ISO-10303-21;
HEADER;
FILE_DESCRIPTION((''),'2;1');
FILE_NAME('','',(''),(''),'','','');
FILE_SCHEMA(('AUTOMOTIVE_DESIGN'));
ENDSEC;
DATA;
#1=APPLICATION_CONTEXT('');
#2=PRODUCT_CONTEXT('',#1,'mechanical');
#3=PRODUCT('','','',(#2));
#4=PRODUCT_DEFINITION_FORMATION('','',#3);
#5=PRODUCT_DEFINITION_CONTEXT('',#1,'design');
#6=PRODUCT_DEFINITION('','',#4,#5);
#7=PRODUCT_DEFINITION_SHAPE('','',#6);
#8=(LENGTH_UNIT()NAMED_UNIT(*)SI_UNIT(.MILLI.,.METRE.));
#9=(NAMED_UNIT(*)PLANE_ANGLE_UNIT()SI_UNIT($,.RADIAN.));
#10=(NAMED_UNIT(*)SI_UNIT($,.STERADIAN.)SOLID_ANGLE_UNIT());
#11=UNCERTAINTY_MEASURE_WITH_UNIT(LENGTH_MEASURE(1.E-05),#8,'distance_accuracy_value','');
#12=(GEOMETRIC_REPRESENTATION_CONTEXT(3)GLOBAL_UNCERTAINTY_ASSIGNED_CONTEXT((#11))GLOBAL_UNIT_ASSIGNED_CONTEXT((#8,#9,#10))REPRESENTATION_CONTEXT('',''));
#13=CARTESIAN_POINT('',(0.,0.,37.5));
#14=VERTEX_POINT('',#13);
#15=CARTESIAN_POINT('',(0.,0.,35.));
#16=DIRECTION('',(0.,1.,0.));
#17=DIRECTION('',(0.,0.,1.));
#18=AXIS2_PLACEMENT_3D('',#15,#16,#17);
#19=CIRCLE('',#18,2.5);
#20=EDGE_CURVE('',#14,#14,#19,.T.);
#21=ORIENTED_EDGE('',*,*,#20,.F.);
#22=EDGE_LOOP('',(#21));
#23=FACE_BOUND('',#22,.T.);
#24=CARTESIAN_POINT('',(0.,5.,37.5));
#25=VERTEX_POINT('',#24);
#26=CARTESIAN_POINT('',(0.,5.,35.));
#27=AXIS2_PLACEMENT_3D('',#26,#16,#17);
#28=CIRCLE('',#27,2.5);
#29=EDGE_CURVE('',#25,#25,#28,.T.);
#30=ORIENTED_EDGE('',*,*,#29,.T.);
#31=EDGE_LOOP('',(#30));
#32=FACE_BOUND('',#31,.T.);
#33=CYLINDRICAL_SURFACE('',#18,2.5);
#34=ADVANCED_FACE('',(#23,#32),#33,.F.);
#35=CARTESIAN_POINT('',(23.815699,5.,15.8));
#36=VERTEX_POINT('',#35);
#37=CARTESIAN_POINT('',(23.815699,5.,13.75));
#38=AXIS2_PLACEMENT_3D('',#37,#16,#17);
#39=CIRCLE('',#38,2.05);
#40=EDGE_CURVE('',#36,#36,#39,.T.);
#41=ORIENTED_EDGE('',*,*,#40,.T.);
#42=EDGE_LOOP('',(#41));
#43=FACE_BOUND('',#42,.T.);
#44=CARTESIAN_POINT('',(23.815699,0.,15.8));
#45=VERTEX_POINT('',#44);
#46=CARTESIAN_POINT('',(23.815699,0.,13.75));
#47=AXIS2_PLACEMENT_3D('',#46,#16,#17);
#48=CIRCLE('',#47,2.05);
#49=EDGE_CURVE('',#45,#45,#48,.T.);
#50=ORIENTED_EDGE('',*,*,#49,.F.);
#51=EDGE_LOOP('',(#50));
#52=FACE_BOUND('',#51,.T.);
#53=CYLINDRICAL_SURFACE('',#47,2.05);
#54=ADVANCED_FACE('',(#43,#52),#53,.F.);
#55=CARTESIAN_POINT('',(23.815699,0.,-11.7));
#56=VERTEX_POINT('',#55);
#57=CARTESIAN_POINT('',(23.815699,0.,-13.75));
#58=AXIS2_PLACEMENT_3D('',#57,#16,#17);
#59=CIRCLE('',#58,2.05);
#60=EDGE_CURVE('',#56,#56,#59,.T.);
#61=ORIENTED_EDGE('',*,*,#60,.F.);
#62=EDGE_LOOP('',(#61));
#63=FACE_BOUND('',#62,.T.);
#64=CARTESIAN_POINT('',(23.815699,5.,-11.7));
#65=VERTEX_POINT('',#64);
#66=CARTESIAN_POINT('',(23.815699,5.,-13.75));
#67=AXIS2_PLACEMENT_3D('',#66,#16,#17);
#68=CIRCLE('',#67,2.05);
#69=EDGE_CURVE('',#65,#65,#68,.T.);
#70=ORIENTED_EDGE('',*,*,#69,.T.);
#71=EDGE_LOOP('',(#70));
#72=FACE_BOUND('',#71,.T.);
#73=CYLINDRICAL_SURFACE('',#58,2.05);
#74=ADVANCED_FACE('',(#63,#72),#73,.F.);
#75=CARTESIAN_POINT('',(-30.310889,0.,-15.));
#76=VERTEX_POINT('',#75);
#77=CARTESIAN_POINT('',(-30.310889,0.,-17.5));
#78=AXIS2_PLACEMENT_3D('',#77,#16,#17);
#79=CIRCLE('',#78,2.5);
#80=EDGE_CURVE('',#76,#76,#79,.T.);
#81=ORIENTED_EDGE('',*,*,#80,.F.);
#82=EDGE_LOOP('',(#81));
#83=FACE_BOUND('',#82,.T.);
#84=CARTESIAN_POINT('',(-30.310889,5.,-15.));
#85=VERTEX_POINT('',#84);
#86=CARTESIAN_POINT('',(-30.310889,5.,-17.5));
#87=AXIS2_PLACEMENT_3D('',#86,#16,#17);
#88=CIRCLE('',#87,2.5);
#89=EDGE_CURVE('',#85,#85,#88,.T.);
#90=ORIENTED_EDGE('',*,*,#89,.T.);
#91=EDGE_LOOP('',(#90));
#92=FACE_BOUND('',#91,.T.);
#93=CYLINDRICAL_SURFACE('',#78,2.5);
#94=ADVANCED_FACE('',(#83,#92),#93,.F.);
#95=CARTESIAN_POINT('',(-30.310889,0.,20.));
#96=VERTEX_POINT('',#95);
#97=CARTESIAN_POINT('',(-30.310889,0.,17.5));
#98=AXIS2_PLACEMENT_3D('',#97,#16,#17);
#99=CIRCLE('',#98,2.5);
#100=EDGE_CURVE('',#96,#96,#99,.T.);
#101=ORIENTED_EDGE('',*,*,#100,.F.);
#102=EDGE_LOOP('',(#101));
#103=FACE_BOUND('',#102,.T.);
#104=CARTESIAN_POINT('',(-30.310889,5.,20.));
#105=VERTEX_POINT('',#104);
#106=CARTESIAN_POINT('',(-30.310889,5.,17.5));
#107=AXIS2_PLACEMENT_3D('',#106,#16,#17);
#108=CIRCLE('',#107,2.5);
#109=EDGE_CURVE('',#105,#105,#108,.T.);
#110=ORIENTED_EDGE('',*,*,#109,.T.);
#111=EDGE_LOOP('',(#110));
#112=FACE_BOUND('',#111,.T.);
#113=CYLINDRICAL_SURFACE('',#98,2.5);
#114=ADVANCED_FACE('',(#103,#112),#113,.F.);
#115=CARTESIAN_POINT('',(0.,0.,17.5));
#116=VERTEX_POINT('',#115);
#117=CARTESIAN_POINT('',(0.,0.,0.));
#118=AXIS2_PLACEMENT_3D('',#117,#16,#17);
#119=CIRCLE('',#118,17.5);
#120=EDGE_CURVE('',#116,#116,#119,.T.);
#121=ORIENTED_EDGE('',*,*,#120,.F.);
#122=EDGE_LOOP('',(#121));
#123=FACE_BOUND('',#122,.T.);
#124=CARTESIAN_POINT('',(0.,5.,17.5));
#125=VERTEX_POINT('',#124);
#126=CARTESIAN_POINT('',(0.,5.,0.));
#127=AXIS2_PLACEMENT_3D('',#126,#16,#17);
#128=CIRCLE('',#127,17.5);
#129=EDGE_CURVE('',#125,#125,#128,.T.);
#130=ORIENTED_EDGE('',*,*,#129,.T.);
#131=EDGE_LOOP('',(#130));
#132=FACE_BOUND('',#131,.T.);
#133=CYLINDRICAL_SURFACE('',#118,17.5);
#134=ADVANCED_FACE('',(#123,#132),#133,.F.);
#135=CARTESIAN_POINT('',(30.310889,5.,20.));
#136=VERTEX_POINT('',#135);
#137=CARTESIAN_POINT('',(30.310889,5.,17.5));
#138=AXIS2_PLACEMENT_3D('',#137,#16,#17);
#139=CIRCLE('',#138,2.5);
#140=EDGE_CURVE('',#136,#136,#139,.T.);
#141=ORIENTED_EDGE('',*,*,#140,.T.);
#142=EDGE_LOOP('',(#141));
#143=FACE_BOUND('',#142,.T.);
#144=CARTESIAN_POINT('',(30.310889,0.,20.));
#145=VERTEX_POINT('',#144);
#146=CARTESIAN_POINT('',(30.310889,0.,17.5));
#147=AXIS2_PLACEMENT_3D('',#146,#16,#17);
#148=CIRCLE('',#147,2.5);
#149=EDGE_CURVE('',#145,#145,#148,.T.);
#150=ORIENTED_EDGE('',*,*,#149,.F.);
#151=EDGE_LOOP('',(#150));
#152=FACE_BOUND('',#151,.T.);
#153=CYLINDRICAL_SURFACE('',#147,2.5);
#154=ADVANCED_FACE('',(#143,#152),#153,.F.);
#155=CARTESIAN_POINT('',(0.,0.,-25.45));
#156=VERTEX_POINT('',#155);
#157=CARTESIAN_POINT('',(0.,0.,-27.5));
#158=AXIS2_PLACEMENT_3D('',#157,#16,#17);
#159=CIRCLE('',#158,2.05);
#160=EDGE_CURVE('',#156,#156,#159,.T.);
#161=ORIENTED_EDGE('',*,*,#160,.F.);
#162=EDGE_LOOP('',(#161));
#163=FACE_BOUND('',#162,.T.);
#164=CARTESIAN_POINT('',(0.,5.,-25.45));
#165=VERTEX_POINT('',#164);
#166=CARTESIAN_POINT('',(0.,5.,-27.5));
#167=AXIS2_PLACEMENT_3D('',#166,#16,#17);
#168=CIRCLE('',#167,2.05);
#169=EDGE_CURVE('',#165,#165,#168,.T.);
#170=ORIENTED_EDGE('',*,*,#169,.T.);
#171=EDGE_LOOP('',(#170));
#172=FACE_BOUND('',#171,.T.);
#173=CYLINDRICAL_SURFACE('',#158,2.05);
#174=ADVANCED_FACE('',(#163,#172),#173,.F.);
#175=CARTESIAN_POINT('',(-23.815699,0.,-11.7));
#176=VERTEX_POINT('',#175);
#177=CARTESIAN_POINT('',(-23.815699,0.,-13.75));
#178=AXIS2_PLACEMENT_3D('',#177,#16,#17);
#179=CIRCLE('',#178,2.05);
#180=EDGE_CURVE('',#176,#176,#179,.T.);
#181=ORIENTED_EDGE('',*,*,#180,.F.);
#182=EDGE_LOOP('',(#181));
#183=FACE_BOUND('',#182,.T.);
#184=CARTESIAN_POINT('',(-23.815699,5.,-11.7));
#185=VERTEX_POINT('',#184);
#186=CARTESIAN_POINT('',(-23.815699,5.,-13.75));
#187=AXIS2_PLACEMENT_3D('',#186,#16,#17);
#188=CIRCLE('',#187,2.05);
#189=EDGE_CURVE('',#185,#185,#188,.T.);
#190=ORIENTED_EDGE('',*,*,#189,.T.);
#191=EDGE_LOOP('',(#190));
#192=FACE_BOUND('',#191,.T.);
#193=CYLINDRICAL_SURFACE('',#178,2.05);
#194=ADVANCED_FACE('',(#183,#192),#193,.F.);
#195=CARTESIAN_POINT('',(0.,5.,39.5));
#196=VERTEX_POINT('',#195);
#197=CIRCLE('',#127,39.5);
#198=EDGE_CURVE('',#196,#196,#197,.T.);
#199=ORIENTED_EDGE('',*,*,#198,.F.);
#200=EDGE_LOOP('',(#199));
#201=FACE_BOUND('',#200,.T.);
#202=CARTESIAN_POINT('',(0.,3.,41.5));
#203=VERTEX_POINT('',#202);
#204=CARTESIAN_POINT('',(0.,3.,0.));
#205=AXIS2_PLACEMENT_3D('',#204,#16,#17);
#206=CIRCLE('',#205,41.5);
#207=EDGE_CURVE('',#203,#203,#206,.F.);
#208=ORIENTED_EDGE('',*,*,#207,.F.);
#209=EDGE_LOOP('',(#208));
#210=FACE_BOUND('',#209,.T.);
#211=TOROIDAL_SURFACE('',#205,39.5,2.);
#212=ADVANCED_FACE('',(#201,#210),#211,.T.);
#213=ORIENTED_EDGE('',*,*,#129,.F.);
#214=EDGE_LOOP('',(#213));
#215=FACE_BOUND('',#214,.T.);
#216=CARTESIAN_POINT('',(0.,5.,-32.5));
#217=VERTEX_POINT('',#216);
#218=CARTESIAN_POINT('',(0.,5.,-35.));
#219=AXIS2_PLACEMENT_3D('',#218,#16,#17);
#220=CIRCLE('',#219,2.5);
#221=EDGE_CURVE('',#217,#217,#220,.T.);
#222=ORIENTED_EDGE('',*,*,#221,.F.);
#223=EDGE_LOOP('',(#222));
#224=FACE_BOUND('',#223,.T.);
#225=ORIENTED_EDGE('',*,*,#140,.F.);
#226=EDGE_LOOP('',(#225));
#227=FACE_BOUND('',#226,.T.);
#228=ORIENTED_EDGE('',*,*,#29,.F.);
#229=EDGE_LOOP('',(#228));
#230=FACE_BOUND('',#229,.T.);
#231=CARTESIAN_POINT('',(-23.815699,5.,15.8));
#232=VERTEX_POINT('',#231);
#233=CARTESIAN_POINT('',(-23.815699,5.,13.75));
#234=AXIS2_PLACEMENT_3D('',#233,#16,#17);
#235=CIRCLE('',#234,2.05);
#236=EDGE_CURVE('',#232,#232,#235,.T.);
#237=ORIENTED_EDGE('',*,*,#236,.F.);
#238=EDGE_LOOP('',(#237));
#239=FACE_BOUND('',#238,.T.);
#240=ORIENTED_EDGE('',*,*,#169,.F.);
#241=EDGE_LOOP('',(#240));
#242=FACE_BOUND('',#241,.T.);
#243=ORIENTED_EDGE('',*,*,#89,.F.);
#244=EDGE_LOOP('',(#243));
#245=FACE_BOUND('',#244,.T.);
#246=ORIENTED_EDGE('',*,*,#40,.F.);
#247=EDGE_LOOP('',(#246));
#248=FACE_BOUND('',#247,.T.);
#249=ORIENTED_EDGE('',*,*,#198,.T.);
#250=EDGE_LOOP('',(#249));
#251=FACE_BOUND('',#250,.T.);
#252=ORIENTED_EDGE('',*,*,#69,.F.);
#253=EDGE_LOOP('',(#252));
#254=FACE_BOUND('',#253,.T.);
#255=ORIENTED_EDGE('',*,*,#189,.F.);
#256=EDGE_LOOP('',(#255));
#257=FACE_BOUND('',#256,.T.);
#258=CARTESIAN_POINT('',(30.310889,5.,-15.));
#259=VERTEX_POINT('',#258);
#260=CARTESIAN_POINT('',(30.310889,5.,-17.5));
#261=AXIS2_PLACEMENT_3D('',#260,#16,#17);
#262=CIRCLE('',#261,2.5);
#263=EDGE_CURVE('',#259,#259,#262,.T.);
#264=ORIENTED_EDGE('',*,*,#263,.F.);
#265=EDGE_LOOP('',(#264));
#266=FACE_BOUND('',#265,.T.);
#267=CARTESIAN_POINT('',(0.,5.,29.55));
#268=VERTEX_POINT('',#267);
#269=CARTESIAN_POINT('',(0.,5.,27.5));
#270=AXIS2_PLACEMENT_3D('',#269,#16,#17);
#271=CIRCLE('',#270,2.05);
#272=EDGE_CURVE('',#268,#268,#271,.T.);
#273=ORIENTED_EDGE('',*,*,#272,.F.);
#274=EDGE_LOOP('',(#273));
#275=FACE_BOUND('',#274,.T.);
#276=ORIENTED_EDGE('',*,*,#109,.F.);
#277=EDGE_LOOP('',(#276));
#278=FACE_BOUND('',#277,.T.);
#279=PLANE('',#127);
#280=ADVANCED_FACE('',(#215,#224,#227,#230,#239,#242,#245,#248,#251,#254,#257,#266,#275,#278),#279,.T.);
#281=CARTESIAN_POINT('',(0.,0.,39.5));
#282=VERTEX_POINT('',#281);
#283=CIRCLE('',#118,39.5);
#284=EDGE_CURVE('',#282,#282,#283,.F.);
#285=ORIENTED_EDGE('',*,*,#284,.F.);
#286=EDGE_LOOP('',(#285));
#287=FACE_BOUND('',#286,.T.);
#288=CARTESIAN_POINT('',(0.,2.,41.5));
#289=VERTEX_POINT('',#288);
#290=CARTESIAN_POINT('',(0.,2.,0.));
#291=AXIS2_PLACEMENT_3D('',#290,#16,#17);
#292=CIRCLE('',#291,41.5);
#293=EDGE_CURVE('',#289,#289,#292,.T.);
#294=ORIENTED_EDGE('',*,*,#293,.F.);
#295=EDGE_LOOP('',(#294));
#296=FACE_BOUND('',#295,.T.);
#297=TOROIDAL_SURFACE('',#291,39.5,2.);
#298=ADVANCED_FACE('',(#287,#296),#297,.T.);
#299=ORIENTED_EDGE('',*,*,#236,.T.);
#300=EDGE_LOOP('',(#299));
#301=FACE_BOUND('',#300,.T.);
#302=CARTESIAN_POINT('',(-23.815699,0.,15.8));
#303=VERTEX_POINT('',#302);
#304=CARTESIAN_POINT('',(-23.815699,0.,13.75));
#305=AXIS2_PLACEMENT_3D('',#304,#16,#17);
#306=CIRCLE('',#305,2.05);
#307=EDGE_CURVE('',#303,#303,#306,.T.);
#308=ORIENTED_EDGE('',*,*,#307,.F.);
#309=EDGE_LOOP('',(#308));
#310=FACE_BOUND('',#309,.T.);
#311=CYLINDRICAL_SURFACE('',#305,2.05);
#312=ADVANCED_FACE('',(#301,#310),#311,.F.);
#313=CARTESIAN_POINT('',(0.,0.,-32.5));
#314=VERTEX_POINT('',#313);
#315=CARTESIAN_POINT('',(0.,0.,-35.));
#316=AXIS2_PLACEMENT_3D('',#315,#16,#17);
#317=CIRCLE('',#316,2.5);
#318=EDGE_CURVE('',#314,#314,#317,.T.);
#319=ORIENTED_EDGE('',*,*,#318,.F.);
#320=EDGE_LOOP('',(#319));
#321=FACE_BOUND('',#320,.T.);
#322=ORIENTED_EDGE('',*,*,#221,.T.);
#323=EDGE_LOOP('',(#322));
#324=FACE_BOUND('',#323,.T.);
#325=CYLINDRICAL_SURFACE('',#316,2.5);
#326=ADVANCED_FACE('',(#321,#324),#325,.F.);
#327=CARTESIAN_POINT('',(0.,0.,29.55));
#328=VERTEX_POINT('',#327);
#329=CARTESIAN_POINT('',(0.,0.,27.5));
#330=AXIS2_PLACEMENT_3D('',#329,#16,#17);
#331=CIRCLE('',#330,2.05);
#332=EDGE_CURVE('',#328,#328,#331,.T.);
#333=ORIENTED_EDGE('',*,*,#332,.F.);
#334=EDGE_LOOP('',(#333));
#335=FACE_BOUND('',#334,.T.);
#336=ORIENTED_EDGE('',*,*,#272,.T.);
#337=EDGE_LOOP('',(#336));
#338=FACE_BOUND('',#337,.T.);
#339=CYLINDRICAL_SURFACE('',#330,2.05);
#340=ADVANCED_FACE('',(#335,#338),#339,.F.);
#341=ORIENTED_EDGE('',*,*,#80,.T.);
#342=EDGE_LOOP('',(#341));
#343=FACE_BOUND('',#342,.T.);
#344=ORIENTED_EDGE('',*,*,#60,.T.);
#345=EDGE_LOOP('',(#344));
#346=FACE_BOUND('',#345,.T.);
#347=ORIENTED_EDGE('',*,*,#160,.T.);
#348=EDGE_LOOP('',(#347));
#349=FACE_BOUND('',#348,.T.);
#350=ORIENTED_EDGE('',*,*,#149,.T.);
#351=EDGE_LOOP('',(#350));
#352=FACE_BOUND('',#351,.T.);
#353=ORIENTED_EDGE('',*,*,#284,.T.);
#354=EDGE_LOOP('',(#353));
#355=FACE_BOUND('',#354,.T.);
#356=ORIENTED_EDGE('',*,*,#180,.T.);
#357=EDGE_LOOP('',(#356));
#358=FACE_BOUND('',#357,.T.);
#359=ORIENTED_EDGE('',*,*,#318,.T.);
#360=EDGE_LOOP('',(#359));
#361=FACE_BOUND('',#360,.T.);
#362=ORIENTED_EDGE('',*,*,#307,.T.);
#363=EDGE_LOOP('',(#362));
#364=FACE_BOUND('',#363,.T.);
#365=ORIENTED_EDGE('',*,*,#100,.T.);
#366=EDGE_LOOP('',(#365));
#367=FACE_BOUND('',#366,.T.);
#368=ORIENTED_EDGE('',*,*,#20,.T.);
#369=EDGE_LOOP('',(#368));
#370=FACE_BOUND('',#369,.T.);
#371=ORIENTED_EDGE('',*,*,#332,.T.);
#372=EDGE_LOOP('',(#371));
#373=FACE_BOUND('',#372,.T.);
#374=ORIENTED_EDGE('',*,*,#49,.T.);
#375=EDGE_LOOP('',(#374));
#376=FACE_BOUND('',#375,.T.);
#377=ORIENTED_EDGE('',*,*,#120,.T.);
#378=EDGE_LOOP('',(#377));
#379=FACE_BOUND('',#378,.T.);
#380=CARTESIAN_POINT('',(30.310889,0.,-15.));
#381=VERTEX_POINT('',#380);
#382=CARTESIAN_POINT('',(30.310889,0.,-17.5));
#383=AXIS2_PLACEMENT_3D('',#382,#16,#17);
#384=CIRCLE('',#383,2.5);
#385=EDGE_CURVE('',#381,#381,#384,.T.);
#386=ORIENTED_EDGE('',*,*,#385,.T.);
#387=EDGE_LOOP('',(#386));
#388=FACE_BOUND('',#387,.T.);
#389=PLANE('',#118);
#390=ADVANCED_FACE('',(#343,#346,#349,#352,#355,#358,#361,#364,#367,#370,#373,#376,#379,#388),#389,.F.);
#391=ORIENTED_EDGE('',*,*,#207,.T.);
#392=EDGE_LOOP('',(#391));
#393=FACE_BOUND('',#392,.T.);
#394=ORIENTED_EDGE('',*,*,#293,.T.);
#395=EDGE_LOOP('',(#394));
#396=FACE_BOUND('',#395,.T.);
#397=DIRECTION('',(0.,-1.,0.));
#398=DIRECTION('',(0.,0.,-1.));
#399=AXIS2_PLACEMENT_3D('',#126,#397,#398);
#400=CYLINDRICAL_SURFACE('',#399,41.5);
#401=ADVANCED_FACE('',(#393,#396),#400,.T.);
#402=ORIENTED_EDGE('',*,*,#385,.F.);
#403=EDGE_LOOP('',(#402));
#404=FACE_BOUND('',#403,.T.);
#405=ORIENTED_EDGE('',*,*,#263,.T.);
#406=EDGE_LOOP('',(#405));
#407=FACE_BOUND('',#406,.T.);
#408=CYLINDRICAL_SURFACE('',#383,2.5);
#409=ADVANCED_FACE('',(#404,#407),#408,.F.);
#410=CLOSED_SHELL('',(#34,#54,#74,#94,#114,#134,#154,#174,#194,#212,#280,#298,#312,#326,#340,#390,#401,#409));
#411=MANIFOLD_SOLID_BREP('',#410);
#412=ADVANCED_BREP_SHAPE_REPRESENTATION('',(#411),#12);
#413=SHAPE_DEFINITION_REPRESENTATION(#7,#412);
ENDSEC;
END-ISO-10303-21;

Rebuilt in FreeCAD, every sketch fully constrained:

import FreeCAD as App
import Part
import Sketcher

V = App.Vector
Q = App.Units.Quantity


def edges_at(feature, points):
    """Names of the edges that pass closest to the given points."""
    edges = feature.Shape.Edges
    near = lambda p: min(range(len(edges)), key=lambda i: edges[i].distToShape(Part.Vertex(*p))[0])
    return sorted({f"Edge{near(p) + 1}" for p in points})

doc = App.newDocument("Part")
params = doc.addObject("Spreadsheet::Sheet", "Params")
for row, (alias, value) in enumerate([
    ("sketch1_diameter", "83 mm"),
    ("pad1_length", "5 mm"),
    ("sketch2_diameter", "4.1 mm"),
    ("sketch3_diameter", "5 mm"),
    ("sketch4_diameter", "35 mm"),
    ("fillet_radius", "2 mm"),
    ("fillet2_radius", "2 mm"),
], start=1):
    params.set(f"A{row}", alias)
    params.set(f"B{row}", "=" + value)
    params.setAlias(f"B{row}", alias)

body = doc.addObject("PartDesign::Body", "Body")

sketch1 = body.newObject("Sketcher::SketchObject", "Sketch")
sketch1.AttachmentSupport = (doc.getObject("XZ_Plane"), [""])
sketch1.MapMode = "FlatFace"
sketch1.addGeometry(Part.Circle(V(0, 0, 0), V(0, 0, 1), 41.5), False)
sketch1.addConstraint(Sketcher.Constraint("Coincident", 0, 3, -1, 1))
sketch1.addConstraint(Sketcher.Constraint("Diameter", 0, Q("83 mm")))
sketch1.setExpression("Constraints[1]", "Params.sketch1_diameter")
pad1 = body.newObject("PartDesign::Pad", "Pad")
pad1.Profile = sketch1
pad1.setExpression("Length", "Params.pad1_length")
pad1.Reversed = True

sketch2 = body.newObject("Sketcher::SketchObject", "Sketch001")
sketch2.AttachmentSupport = (doc.getObject("XZ_Plane"), [""])
sketch2.MapMode = "FlatFace"
sketch2.AttachmentOffset = App.Placement(V(0, 0, -5), App.Rotation())
sketch2.addGeometry(Part.Circle(V(0, -27.5, 0), V(0, 0, 1), 2.05), False)
sketch2.addGeometry(Part.Circle(V(23.815699, -13.75, 0), V(0, 0, 1), 2.05), False)
sketch2.addGeometry(Part.Circle(V(23.815699, 13.75, 0), V(0, 0, 1), 2.05), False)
sketch2.addGeometry(Part.Circle(V(0, 27.5, 0), V(0, 0, 1), 2.05), False)
sketch2.addGeometry(Part.Circle(V(-23.815699, 13.75, 0), V(0, 0, 1), 2.05), False)
sketch2.addGeometry(Part.Circle(V(-23.815699, -13.75, 0), V(0, 0, 1), 2.05), False)
sketch2.addConstraint(Sketcher.Constraint("Equal", 0, 1))
sketch2.addConstraint(Sketcher.Constraint("Equal", 1, 2))
sketch2.addConstraint(Sketcher.Constraint("Equal", 2, 3))
sketch2.addConstraint(Sketcher.Constraint("Equal", 3, 4))
sketch2.addConstraint(Sketcher.Constraint("Equal", 4, 5))
sketch2.addConstraint(Sketcher.Constraint("Symmetric", 0, 3, 3, 3, -1, 1))
sketch2.addConstraint(Sketcher.Constraint("Symmetric", 1, 3, 4, 3, -1, 1))
sketch2.addConstraint(Sketcher.Constraint("Symmetric", 2, 3, 5, 3, -1, 1))
sketch2.addConstraint(Sketcher.Constraint("Symmetric", 2, 3, 4, 3, -2))
sketch2.addConstraint(Sketcher.Constraint("PointOnObject", 0, 3, -2))
sketch2.addConstraint(Sketcher.Constraint("Diameter", 0, Q("4.1 mm")))
sketch2.addConstraint(Sketcher.Constraint("DistanceY", 0, 3, 3, 3, Q("55 mm")))
sketch2.addConstraint(Sketcher.Constraint("DistanceY", 1, 3, 2, 3, Q("27.5 mm")))
sketch2.addConstraint(Sketcher.Constraint("DistanceX", -1, 1, 1, 3, Q("23.815699 mm")))
sketch2.setExpression("Constraints[10]", "Params.sketch2_diameter")
pocket1 = body.newObject("PartDesign::Pocket", "Pocket")
pocket1.Profile = sketch2
pocket1.Type = "ThroughAll"
pocket1.Reversed = True

sketch3 = body.newObject("Sketcher::SketchObject", "Sketch002")
sketch3.AttachmentSupport = (doc.getObject("XZ_Plane"), [""])
sketch3.MapMode = "FlatFace"
sketch3.AttachmentOffset = App.Placement(V(0, 0, -5), App.Rotation())
sketch3.addGeometry(Part.Circle(V(0, -35, 0), V(0, 0, 1), 2.5), False)
sketch3.addGeometry(Part.Circle(V(30.310889, -17.5, 0), V(0, 0, 1), 2.5), False)
sketch3.addGeometry(Part.Circle(V(30.310889, 17.5, 0), V(0, 0, 1), 2.5), False)
sketch3.addGeometry(Part.Circle(V(0, 35, 0), V(0, 0, 1), 2.5), False)
sketch3.addGeometry(Part.Circle(V(-30.310889, 17.5, 0), V(0, 0, 1), 2.5), False)
sketch3.addGeometry(Part.Circle(V(-30.310889, -17.5, 0), V(0, 0, 1), 2.5), False)
sketch3.addConstraint(Sketcher.Constraint("Equal", 0, 1))
sketch3.addConstraint(Sketcher.Constraint("Equal", 1, 2))
sketch3.addConstraint(Sketcher.Constraint("Equal", 2, 3))
sketch3.addConstraint(Sketcher.Constraint("Equal", 3, 4))
sketch3.addConstraint(Sketcher.Constraint("Equal", 4, 5))
sketch3.addConstraint(Sketcher.Constraint("Symmetric", 0, 3, 3, 3, -1, 1))
sketch3.addConstraint(Sketcher.Constraint("Symmetric", 1, 3, 4, 3, -1, 1))
sketch3.addConstraint(Sketcher.Constraint("Symmetric", 2, 3, 5, 3, -1, 1))
sketch3.addConstraint(Sketcher.Constraint("Symmetric", 2, 3, 4, 3, -2))
sketch3.addConstraint(Sketcher.Constraint("PointOnObject", 0, 3, -2))
sketch3.addConstraint(Sketcher.Constraint("Diameter", 0, Q("5 mm")))
sketch3.addConstraint(Sketcher.Constraint("DistanceY", 0, 3, -1, 1, Q("35 mm")))
sketch3.addConstraint(Sketcher.Constraint("DistanceY", 1, 3, 2, 3, Q("35 mm")))
sketch3.addConstraint(Sketcher.Constraint("DistanceX", -1, 1, 1, 3, Q("30.310889 mm")))
sketch3.setExpression("Constraints[10]", "Params.sketch3_diameter")
pocket2 = body.newObject("PartDesign::Pocket", "Pocket001")
pocket2.Profile = sketch3
pocket2.Type = "ThroughAll"
pocket2.Reversed = True

sketch4 = body.newObject("Sketcher::SketchObject", "Sketch003")
sketch4.AttachmentSupport = (doc.getObject("XZ_Plane"), [""])
sketch4.MapMode = "FlatFace"
sketch4.AttachmentOffset = App.Placement(V(0, 0, -5), App.Rotation())
sketch4.addGeometry(Part.Circle(V(0, 0, 0), V(0, 0, 1), 17.5), False)
sketch4.addConstraint(Sketcher.Constraint("Coincident", 0, 3, -1, 1))
sketch4.addConstraint(Sketcher.Constraint("Diameter", 0, Q("35 mm")))
sketch4.setExpression("Constraints[1]", "Params.sketch4_diameter")
pocket3 = body.newObject("PartDesign::Pocket", "Pocket002")
pocket3.Profile = sketch4
pocket3.Type = "ThroughAll"
pocket3.Reversed = True
doc.recompute()

fillet = body.newObject("PartDesign::Fillet", "Fillet")
fillet.Base = (pocket3, edges_at(pocket3, [(0, 5, -41.5)]))
fillet.setExpression("Radius", "Params.fillet_radius")
doc.recompute()

fillet2 = body.newObject("PartDesign::Fillet", "Fillet001")
fillet2.Base = (fillet, edges_at(fillet, [(0, 0, -41.5)]))
fillet2.setExpression("Radius", "Params.fillet2_radius")

doc.recompute()
